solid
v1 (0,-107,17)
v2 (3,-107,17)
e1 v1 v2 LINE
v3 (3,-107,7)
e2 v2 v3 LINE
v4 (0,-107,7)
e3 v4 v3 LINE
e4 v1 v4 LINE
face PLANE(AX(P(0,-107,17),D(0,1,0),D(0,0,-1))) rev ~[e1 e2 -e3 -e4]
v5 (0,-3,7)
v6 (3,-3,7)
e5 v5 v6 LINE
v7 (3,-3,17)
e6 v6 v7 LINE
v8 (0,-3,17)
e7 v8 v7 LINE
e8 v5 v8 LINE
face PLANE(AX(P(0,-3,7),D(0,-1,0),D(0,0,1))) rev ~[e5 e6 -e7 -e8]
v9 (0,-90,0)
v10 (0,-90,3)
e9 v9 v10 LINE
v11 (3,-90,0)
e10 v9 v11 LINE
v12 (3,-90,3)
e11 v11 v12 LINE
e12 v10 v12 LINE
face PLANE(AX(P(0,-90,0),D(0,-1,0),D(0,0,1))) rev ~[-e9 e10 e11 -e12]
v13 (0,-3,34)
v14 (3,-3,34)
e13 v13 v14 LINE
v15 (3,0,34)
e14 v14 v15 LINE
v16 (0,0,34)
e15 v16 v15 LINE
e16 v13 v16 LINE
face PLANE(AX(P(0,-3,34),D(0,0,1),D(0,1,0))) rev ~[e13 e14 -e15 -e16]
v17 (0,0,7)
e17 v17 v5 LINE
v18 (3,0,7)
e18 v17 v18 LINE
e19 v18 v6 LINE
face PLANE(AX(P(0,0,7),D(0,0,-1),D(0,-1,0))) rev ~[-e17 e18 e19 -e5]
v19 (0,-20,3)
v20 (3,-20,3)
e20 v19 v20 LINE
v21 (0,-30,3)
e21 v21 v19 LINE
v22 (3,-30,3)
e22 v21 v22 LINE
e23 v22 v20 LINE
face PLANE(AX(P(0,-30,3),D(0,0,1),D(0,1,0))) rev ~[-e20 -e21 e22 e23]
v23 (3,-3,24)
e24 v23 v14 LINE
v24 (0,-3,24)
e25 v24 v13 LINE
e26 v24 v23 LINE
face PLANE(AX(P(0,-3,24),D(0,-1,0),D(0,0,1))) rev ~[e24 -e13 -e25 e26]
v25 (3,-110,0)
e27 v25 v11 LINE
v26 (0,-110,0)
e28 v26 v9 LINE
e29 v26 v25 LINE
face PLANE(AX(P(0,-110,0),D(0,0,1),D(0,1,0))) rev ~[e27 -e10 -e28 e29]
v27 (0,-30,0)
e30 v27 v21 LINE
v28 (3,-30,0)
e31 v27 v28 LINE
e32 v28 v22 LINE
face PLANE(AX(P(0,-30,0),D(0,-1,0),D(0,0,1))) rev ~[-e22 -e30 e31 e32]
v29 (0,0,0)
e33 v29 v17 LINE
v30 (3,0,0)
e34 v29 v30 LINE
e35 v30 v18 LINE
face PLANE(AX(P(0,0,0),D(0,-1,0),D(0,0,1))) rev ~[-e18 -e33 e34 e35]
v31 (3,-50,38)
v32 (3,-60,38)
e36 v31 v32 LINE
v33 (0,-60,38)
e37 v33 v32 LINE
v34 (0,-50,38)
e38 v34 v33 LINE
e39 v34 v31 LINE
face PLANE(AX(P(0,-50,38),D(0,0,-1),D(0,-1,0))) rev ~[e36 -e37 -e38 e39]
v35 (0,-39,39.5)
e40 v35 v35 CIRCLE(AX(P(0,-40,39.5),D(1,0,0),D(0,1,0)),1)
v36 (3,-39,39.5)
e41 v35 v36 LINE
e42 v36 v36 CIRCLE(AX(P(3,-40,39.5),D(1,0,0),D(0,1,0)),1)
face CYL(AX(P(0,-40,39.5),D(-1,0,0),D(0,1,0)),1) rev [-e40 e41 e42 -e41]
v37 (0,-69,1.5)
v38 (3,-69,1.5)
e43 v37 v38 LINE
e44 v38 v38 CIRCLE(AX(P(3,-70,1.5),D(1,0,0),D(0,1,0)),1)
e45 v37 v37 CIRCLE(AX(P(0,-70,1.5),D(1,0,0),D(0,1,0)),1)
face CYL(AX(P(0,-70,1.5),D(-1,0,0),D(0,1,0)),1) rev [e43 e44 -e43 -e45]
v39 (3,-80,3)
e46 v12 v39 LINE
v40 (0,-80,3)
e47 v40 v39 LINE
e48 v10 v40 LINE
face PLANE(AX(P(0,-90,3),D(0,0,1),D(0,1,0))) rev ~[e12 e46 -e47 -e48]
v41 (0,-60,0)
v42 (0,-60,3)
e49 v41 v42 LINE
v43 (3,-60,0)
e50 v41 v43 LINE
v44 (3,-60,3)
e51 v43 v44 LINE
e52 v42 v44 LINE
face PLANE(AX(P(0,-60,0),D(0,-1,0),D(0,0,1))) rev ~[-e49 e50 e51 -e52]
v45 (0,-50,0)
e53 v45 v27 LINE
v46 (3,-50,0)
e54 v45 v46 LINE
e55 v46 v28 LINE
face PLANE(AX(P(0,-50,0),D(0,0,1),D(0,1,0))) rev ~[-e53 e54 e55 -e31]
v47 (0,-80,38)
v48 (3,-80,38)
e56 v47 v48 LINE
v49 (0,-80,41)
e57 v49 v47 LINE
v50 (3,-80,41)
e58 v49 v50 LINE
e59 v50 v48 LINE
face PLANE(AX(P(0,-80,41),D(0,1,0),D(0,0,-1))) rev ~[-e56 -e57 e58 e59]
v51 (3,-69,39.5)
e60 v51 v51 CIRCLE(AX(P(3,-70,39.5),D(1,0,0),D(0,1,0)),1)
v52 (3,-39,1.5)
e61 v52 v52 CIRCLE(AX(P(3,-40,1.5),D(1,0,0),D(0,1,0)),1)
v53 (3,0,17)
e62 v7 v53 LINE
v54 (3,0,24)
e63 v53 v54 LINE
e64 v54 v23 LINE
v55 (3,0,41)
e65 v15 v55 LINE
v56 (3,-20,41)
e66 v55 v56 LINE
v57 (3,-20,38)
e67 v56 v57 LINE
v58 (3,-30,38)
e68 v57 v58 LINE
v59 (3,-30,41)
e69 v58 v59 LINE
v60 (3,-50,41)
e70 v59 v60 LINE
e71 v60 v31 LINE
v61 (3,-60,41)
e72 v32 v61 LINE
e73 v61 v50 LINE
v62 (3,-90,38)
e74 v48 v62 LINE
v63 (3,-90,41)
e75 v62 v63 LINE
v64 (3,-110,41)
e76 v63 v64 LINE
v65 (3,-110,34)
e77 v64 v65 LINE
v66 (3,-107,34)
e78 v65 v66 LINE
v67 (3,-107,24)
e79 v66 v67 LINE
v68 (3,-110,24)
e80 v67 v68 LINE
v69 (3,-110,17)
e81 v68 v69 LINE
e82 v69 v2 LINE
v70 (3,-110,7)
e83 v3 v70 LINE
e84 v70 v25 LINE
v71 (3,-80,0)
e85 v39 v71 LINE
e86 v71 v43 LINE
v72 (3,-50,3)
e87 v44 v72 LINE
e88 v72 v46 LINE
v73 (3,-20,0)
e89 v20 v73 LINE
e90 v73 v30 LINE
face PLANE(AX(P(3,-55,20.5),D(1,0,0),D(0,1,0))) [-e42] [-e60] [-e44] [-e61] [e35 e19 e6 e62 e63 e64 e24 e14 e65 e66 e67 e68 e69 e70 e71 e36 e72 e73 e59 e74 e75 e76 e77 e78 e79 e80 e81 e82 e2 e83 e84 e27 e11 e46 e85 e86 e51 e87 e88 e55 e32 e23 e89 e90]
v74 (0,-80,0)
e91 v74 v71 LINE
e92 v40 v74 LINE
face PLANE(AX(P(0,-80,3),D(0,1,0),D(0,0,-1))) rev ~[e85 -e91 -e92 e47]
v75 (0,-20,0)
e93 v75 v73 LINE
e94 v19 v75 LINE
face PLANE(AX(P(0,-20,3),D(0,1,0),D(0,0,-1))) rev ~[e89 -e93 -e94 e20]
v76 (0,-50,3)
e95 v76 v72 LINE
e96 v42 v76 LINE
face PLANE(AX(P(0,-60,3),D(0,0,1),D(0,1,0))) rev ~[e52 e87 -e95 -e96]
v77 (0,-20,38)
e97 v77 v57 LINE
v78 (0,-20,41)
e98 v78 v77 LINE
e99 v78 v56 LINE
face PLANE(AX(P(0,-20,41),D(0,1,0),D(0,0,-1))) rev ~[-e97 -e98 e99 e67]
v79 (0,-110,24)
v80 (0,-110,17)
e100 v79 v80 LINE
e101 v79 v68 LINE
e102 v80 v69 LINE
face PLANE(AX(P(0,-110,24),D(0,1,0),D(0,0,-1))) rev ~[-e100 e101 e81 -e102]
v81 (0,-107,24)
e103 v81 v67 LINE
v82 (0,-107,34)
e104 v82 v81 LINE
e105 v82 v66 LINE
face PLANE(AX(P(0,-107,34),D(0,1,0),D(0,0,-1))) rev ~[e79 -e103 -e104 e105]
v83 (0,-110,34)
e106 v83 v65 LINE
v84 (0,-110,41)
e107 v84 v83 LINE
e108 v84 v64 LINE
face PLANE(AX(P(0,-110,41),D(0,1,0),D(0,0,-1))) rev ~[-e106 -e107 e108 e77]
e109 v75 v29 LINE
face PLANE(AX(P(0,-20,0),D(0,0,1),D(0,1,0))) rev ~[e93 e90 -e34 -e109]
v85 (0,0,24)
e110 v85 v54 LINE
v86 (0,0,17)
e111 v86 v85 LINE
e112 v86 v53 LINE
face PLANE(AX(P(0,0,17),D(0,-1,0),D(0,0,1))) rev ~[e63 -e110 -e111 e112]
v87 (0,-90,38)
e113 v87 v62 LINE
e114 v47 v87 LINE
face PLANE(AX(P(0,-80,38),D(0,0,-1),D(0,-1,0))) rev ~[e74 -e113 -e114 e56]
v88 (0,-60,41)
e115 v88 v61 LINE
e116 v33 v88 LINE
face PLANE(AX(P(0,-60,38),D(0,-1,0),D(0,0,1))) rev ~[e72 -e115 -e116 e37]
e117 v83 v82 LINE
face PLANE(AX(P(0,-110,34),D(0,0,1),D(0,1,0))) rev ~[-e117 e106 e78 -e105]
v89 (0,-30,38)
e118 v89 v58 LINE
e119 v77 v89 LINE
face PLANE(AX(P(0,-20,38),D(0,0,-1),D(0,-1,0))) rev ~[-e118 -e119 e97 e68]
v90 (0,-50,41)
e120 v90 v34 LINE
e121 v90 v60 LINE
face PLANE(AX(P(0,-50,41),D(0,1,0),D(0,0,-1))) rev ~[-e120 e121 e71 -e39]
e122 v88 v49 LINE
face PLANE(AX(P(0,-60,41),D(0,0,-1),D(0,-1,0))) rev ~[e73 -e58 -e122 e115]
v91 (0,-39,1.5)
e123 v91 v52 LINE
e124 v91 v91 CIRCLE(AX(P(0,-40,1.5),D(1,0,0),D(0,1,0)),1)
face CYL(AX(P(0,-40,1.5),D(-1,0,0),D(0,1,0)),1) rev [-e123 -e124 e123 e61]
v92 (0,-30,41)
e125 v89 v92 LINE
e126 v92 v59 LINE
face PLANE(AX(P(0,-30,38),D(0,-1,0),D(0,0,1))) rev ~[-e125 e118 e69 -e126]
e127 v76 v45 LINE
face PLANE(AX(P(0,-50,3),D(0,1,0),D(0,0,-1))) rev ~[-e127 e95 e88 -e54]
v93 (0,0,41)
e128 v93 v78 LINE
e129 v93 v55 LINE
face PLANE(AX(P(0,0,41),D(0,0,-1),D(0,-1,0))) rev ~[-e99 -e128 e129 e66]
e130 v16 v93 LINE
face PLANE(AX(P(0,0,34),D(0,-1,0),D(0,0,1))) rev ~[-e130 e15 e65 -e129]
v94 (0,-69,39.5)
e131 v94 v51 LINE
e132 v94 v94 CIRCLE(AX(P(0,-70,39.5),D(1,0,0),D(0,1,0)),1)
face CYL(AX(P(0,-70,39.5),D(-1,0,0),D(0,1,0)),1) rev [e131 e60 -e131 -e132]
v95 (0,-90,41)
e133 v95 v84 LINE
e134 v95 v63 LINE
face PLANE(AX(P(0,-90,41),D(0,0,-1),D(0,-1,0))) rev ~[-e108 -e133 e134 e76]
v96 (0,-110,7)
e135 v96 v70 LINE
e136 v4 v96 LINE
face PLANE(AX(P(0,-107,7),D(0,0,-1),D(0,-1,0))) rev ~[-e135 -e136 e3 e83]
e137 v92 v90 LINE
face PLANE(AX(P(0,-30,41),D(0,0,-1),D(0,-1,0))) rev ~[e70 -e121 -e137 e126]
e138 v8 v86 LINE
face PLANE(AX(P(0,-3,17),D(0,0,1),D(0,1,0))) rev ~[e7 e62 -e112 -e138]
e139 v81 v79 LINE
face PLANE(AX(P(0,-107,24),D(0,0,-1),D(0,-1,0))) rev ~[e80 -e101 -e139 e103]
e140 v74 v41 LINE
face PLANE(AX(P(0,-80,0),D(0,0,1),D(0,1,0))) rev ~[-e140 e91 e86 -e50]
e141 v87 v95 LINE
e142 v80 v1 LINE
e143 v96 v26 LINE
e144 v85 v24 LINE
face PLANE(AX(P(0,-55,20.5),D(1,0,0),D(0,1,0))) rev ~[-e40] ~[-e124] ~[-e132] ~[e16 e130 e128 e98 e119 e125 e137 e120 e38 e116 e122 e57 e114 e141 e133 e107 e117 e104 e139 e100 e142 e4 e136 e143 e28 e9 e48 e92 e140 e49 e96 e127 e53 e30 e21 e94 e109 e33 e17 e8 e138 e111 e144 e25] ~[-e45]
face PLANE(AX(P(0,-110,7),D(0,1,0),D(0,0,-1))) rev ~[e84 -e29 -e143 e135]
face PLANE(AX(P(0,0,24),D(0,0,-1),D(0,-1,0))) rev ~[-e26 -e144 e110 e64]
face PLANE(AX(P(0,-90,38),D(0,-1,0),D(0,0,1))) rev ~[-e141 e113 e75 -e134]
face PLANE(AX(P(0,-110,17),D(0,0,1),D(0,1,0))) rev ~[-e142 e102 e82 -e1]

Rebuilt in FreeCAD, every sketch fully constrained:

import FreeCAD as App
import Part
import Sketcher
from FreeCAD import Vector
Q = App.Units.Quantity

doc = App.newDocument("Part")
body = doc.addObject("PartDesign::Body", "Body")

# Sketch on YZ plane
sketch1 = doc.addObject("Sketcher::SketchObject", "Sketch")
body.addObject(sketch1)
sketch1.AttachmentSupport = (doc.YZ_Plane, [""])
sketch1.MapMode = "FlatFace"
sketch1.addGeometry([
    Part.LineSegment(Vector(-20, 0, 0), Vector(0, 0, 0)),  # 0
    Part.LineSegment(Vector(0, 0, 0), Vector(0, 7, 0)),  # 1
    Part.LineSegment(Vector(0, 7, 0), Vector(-3, 7, 0)),  # 2
    Part.LineSegment(Vector(-3, 7, 0), Vector(-3, 17, 0)),  # 3
    Part.LineSegment(Vector(-3, 17, 0), Vector(0, 17, 0)),  # 4
    Part.LineSegment(Vector(0, 17, 0), Vector(0, 24, 0)),  # 5
    Part.LineSegment(Vector(0, 24, 0), Vector(-3, 24, 0)),  # 6
    Part.LineSegment(Vector(-3, 24, 0), Vector(-3, 34, 0)),  # 7
    Part.LineSegment(Vector(-3, 34, 0), Vector(0, 34, 0)),  # 8
    Part.LineSegment(Vector(0, 34, 0), Vector(0, 41, 0)),  # 9
    Part.LineSegment(Vector(0, 41, 0), Vector(-20, 41, 0)),  # 10
    Part.LineSegment(Vector(-20, 41, 0), Vector(-20, 38, 0)),  # 11
    Part.LineSegment(Vector(-20, 38, 0), Vector(-30, 38, 0)),  # 12
    Part.LineSegment(Vector(-30, 38, 0), Vector(-30, 41, 0)),  # 13
    Part.LineSegment(Vector(-30, 41, 0), Vector(-50, 41, 0)),  # 14
    Part.LineSegment(Vector(-50, 41, 0), Vector(-50, 38, 0)),  # 15
    Part.LineSegment(Vector(-50, 38, 0), Vector(-60, 38, 0)),  # 16
    Part.LineSegment(Vector(-60, 38, 0), Vector(-60, 41, 0)),  # 17
    Part.LineSegment(Vector(-60, 41, 0), Vector(-80, 41, 0)),  # 18
    Part.LineSegment(Vector(-80, 41, 0), Vector(-80, 38, 0)),  # 19
    Part.LineSegment(Vector(-80, 38, 0), Vector(-90, 38, 0)),  # 20
    Part.LineSegment(Vector(-90, 38, 0), Vector(-90, 41, 0)),  # 21
    Part.LineSegment(Vector(-90, 41, 0), Vector(-110, 41, 0)),  # 22
    Part.LineSegment(Vector(-110, 41, 0), Vector(-110, 34, 0)),  # 23
    Part.LineSegment(Vector(-110, 34, 0), Vector(-107, 34, 0)),  # 24
    Part.LineSegment(Vector(-107, 34, 0), Vector(-107, 24, 0)),  # 25
    Part.LineSegment(Vector(-107, 24, 0), Vector(-110, 24, 0)),  # 26
    Part.LineSegment(Vector(-110, 24, 0), Vector(-110, 17, 0)),  # 27
    Part.LineSegment(Vector(-110, 17, 0), Vector(-107, 17, 0)),  # 28
    Part.LineSegment(Vector(-107, 17, 0), Vector(-107, 7, 0)),  # 29
    Part.LineSegment(Vector(-107, 7, 0), Vector(-110, 7, 0)),  # 30
    Part.LineSegment(Vector(-110, 7, 0), Vector(-110, 0, 0)),  # 31
    Part.LineSegment(Vector(-110, 0, 0), Vector(-90, 0, 0)),  # 32
    Part.LineSegment(Vector(-90, 0, 0), Vector(-90, 3, 0)),  # 33
    Part.LineSegment(Vector(-90, 3, 0), Vector(-80, 3, 0)),  # 34
    Part.LineSegment(Vector(-80, 3, 0), Vector(-80, 0, 0)),  # 35
    Part.LineSegment(Vector(-80, 0, 0), Vector(-60, 0, 0)),  # 36
    Part.LineSegment(Vector(-60, 0, 0), Vector(-60, 3, 0)),  # 37
    Part.LineSegment(Vector(-60, 3, 0), Vector(-50, 3, 0)),  # 38
    Part.LineSegment(Vector(-50, 3, 0), Vector(-50, 0, 0)),  # 39
    Part.LineSegment(Vector(-50, 0, 0), Vector(-30, 0, 0)),  # 40
    Part.LineSegment(Vector(-30, 0, 0), Vector(-30, 3, 0)),  # 41
    Part.LineSegment(Vector(-30, 3, 0), Vector(-20, 3, 0)),  # 42
    Part.LineSegment(Vector(-20, 3, 0), Vector(-20, 0, 0)),  # 43
    Part.Circle(Vector(-70, 1.5, 0), Vector(0, 0, 1), 1),  # 44
    Part.Circle(Vector(-40, 1.5, 0), Vector(0, 0, 1), 1),  # 45
    Part.Circle(Vector(-70, 39.5, 0), Vector(0, 0, 1), 1),  # 46
    Part.Circle(Vector(-40, 39.5, 0), Vector(0, 0, 1), 1),  # 47
], False)
sketch1.addConstraint([
    Sketcher.Constraint("Coincident", 0, 2, 1, 1),
    Sketcher.Constraint("Coincident", 1, 2, 2, 1),
    Sketcher.Constraint("Coincident", 2, 2, 3, 1),
    Sketcher.Constraint("Coincident", 3, 2, 4, 1),
    Sketcher.Constraint("Coincident", 4, 2, 5, 1),
    Sketcher.Constraint("Coincident", 5, 2, 6, 1),
    Sketcher.Constraint("Coincident", 6, 2, 7, 1),
    Sketcher.Constraint("Coincident", 7, 2, 8, 1),
    Sketcher.Constraint("Coincident", 8, 2, 9, 1),
    Sketcher.Constraint("Coincident", 9, 2, 10, 1),
    Sketcher.Constraint("Coincident", 10, 2, 11, 1),
    Sketcher.Constraint("Coincident", 11, 2, 12, 1),
    Sketcher.Constraint("Coincident", 12, 2, 13, 1),
    Sketcher.Constraint("Coincident", 13, 2, 14, 1),
    Sketcher.Constraint("Coincident", 14, 2, 15, 1),
    Sketcher.Constraint("Coincident", 15, 2, 16, 1),
    Sketcher.Constraint("Coincident", 16, 2, 17, 1),
    Sketcher.Constraint("Coincident", 17, 2, 18, 1),
    Sketcher.Constraint("Coincident", 18, 2, 19, 1),
    Sketcher.Constraint("Coincident", 19, 2, 20, 1),
    Sketcher.Constraint("Coincident", 20, 2, 21, 1),
    Sketcher.Constraint("Coincident", 21, 2, 22, 1),
    Sketcher.Constraint("Coincident", 22, 2, 23, 1),
    Sketcher.Constraint("Coincident", 23, 2, 24, 1),
    Sketcher.Constraint("Coincident", 24, 2, 25, 1),
    Sketcher.Constraint("Coincident", 25, 2, 26, 1),
    Sketcher.Constraint("Coincident", 26, 2, 27, 1),
    Sketcher.Constraint("Coincident", 27, 2, 28, 1),
    Sketcher.Constraint("Coincident", 28, 2, 29, 1),
    Sketcher.Constraint("Coincident", 29, 2, 30, 1),
    Sketcher.Constraint("Coincident", 30, 2, 31, 1),
    Sketcher.Constraint("Coincident", 31, 2, 32, 1),
    Sketcher.Constraint("Coincident", 32, 2, 33, 1),
    Sketcher.Constraint("Coincident", 33, 2, 34, 1),
    Sketcher.Constraint("Coincident", 34, 2, 35, 1),
    Sketcher.Constraint("Coincident", 35, 2, 36, 1),
    Sketcher.Constraint("Coincident", 36, 2, 37, 1),
    Sketcher.Constraint("Coincident", 37, 2, 38, 1),
    Sketcher.Constraint("Coincident", 38, 2, 39, 1),
    Sketcher.Constraint("Coincident", 39, 2, 40, 1),
    Sketcher.Constraint("Coincident", 40, 2, 41, 1),
    Sketcher.Constraint("Coincident", 41, 2, 42, 1),
    Sketcher.Constraint("Coincident", 42, 2, 43, 1),
    Sketcher.Constraint("Coincident", 43, 2, 0, 1),
    Sketcher.Constraint("Horizontal", 0),
    Sketcher.Constraint("Vertical", 1),
    Sketcher.Constraint("Horizontal", 2),
    Sketcher.Constraint("Vertical", 3),
    Sketcher.Constraint("Horizontal", 4),
    Sketcher.Constraint("Vertical", 5),
    Sketcher.Constraint("Horizontal", 6),
    Sketcher.Constraint("Vertical", 7),
    Sketcher.Constraint("Horizontal", 8),
    Sketcher.Constraint("Vertical", 9),
    Sketcher.Constraint("Horizontal", 10),
    Sketcher.Constraint("Vertical", 11),
    Sketcher.Constraint("Horizontal", 12),
    Sketcher.Constraint("Vertical", 13),
    Sketcher.Constraint("Horizontal", 14),
    Sketcher.Constraint("Vertical", 15),
    Sketcher.Constraint("Horizontal", 16),
    Sketcher.Constraint("Vertical", 17),
    Sketcher.Constraint("Horizontal", 18),
    Sketcher.Constraint("Vertical", 19),
    Sketcher.Constraint("Horizontal", 20),
    Sketcher.Constraint("Vertical", 21),
    Sketcher.Constraint("Horizontal", 22),
    Sketcher.Constraint("Vertical", 23),
    Sketcher.Constraint("Horizontal", 24),
    Sketcher.Constraint("Vertical", 25),
    Sketcher.Constraint("Horizontal", 26),
    Sketcher.Constraint("Vertical", 27),
    Sketcher.Constraint("Horizontal", 28),
    Sketcher.Constraint("Vertical", 29),
    Sketcher.Constraint("Horizontal", 30),
    Sketcher.Constraint("Vertical", 31),
    Sketcher.Constraint("Horizontal", 32),
    Sketcher.Constraint("Vertical", 33),
    Sketcher.Constraint("Horizontal", 34),
    Sketcher.Constraint("Vertical", 35),
    Sketcher.Constraint("Horizontal", 36),
    Sketcher.Constraint("Vertical", 37),
    Sketcher.Constraint("Horizontal", 38),
    Sketcher.Constraint("Vertical", 39),
    Sketcher.Constraint("Horizontal", 40),
    Sketcher.Constraint("Vertical", 41),
    Sketcher.Constraint("Horizontal", 42),
    Sketcher.Constraint("Vertical", 43),
    Sketcher.Constraint("Coincident", 0, 2, -1, 1),
    Sketcher.Constraint("Equal", 44, 45),
    Sketcher.Constraint("Equal", 45, 46),
    Sketcher.Constraint("Equal", 46, 47),
    Sketcher.Constraint("PointOnObject", 4, 2, -2),
    Sketcher.Constraint("PointOnObject", 8, 2, -2),
    Sketcher.Constraint("PointOnObject", 31, 2, -1),
    Sketcher.Constraint("PointOnObject", 35, 2, -1),
    Sketcher.Constraint("PointOnObject", 39, 2, -1),
    Sketcher.Constraint("Horizontal", 44, 3, 45, 3),
    Sketcher.Constraint("Horizontal", 46, 3, 47, 3),
    Sketcher.Constraint("Horizontal", 10, 2, 13, 2),
    Sketcher.Constraint("Horizontal", 12, 2, 15, 2),
    Sketcher.Constraint("Horizontal", 14, 2, 17, 2),
    Sketcher.Constraint("Horizontal", 16, 2, 19, 2),
    Sketcher.Constraint("Horizontal", 18, 2, 21, 2),
    Sketcher.Constraint("Horizontal", 8, 2, 23, 2),
    Sketcher.Constraint("Horizontal", 6, 2, 25, 2),
    Sketcher.Constraint("Horizontal", 4, 2, 27, 2),
    Sketcher.Constraint("Horizontal", 2, 2, 29, 2),
    Sketcher.Constraint("Horizontal", 34, 2, 37, 2),
    Sketcher.Constraint("Horizontal", 38, 2, 41, 2),
    Sketcher.Constraint("Vertical", 44, 3, 46, 3),
    Sketcher.Constraint("Vertical", 45, 3, 47, 3),
    Sketcher.Constraint("Vertical", 3, 2, 6, 2),
    Sketcher.Constraint("Vertical", 23, 2, 26, 2),
    Sketcher.Constraint("Vertical", 25, 2, 28, 2),
    Sketcher.Constraint("Vertical", 27, 2, 30, 2),
    Sketcher.Constraint("Vertical", 21, 2, 32, 2),
    Sketcher.Constraint("Vertical", 19, 2, 34, 2),
    Sketcher.Constraint("Vertical", 17, 2, 36, 2),
    Sketcher.Constraint("Vertical", 15, 2, 38, 2),
    Sketcher.Constraint("Vertical", 13, 2, 40, 2),
    Sketcher.Constraint("Vertical", 11, 2, 42, 2),
    Sketcher.Constraint("Equal", 10, 14),
    Sketcher.Constraint("Equal", 12, 16),
    Sketcher.Constraint("Equal", 14, 18),
    Sketcher.Constraint("Equal", 16, 20),
    Sketcher.Constraint("Equal", 18, 22),
    Sketcher.Constraint("Equal", 8, 24),
    Sketcher.Constraint("Equal", 42, 3),
    Sketcher.Constraint("Equal", 1, 5),
    Sketcher.Constraint("Equal", 3, 7),
    Sketcher.Constraint("Equal", 5, 9),
    Sketcher.Constraint("Equal", 30, 11),
    Sketcher.Constraint("Equal", 21, 33),
    Sketcher.Constraint("Diameter", 44, Q("2 mm")),
    Sketcher.Constraint("DistanceX", 0, 1, 0, 2, Q("20 mm")),
    Sketcher.Constraint("DistanceX", 2, 2, 2, 1, Q("3 mm")),
    Sketcher.Constraint("DistanceX", 12, 2, 12, 1, Q("10 mm")),
    Sketcher.Constraint("DistanceY", 1, 1, 1, 2, Q("7 mm")),
    Sketcher.Constraint("DistanceX", 44, 3, -1, 1, Q("70 mm")),
    Sketcher.Constraint("DistanceX", 45, 3, -1, 1, Q("40 mm")),
    Sketcher.Constraint("DistanceY", 44, 3, 46, 3, Q("38 mm")),
    Sketcher.Constraint("DistanceY", -1, 1, 44, 3, Q("1.5 mm")),
])
pad1 = doc.addObject("PartDesign::Pad", "Pad")
body.addObject(pad1)
pad1.Profile = sketch1
pad1.Length = 3

doc.recompute()
